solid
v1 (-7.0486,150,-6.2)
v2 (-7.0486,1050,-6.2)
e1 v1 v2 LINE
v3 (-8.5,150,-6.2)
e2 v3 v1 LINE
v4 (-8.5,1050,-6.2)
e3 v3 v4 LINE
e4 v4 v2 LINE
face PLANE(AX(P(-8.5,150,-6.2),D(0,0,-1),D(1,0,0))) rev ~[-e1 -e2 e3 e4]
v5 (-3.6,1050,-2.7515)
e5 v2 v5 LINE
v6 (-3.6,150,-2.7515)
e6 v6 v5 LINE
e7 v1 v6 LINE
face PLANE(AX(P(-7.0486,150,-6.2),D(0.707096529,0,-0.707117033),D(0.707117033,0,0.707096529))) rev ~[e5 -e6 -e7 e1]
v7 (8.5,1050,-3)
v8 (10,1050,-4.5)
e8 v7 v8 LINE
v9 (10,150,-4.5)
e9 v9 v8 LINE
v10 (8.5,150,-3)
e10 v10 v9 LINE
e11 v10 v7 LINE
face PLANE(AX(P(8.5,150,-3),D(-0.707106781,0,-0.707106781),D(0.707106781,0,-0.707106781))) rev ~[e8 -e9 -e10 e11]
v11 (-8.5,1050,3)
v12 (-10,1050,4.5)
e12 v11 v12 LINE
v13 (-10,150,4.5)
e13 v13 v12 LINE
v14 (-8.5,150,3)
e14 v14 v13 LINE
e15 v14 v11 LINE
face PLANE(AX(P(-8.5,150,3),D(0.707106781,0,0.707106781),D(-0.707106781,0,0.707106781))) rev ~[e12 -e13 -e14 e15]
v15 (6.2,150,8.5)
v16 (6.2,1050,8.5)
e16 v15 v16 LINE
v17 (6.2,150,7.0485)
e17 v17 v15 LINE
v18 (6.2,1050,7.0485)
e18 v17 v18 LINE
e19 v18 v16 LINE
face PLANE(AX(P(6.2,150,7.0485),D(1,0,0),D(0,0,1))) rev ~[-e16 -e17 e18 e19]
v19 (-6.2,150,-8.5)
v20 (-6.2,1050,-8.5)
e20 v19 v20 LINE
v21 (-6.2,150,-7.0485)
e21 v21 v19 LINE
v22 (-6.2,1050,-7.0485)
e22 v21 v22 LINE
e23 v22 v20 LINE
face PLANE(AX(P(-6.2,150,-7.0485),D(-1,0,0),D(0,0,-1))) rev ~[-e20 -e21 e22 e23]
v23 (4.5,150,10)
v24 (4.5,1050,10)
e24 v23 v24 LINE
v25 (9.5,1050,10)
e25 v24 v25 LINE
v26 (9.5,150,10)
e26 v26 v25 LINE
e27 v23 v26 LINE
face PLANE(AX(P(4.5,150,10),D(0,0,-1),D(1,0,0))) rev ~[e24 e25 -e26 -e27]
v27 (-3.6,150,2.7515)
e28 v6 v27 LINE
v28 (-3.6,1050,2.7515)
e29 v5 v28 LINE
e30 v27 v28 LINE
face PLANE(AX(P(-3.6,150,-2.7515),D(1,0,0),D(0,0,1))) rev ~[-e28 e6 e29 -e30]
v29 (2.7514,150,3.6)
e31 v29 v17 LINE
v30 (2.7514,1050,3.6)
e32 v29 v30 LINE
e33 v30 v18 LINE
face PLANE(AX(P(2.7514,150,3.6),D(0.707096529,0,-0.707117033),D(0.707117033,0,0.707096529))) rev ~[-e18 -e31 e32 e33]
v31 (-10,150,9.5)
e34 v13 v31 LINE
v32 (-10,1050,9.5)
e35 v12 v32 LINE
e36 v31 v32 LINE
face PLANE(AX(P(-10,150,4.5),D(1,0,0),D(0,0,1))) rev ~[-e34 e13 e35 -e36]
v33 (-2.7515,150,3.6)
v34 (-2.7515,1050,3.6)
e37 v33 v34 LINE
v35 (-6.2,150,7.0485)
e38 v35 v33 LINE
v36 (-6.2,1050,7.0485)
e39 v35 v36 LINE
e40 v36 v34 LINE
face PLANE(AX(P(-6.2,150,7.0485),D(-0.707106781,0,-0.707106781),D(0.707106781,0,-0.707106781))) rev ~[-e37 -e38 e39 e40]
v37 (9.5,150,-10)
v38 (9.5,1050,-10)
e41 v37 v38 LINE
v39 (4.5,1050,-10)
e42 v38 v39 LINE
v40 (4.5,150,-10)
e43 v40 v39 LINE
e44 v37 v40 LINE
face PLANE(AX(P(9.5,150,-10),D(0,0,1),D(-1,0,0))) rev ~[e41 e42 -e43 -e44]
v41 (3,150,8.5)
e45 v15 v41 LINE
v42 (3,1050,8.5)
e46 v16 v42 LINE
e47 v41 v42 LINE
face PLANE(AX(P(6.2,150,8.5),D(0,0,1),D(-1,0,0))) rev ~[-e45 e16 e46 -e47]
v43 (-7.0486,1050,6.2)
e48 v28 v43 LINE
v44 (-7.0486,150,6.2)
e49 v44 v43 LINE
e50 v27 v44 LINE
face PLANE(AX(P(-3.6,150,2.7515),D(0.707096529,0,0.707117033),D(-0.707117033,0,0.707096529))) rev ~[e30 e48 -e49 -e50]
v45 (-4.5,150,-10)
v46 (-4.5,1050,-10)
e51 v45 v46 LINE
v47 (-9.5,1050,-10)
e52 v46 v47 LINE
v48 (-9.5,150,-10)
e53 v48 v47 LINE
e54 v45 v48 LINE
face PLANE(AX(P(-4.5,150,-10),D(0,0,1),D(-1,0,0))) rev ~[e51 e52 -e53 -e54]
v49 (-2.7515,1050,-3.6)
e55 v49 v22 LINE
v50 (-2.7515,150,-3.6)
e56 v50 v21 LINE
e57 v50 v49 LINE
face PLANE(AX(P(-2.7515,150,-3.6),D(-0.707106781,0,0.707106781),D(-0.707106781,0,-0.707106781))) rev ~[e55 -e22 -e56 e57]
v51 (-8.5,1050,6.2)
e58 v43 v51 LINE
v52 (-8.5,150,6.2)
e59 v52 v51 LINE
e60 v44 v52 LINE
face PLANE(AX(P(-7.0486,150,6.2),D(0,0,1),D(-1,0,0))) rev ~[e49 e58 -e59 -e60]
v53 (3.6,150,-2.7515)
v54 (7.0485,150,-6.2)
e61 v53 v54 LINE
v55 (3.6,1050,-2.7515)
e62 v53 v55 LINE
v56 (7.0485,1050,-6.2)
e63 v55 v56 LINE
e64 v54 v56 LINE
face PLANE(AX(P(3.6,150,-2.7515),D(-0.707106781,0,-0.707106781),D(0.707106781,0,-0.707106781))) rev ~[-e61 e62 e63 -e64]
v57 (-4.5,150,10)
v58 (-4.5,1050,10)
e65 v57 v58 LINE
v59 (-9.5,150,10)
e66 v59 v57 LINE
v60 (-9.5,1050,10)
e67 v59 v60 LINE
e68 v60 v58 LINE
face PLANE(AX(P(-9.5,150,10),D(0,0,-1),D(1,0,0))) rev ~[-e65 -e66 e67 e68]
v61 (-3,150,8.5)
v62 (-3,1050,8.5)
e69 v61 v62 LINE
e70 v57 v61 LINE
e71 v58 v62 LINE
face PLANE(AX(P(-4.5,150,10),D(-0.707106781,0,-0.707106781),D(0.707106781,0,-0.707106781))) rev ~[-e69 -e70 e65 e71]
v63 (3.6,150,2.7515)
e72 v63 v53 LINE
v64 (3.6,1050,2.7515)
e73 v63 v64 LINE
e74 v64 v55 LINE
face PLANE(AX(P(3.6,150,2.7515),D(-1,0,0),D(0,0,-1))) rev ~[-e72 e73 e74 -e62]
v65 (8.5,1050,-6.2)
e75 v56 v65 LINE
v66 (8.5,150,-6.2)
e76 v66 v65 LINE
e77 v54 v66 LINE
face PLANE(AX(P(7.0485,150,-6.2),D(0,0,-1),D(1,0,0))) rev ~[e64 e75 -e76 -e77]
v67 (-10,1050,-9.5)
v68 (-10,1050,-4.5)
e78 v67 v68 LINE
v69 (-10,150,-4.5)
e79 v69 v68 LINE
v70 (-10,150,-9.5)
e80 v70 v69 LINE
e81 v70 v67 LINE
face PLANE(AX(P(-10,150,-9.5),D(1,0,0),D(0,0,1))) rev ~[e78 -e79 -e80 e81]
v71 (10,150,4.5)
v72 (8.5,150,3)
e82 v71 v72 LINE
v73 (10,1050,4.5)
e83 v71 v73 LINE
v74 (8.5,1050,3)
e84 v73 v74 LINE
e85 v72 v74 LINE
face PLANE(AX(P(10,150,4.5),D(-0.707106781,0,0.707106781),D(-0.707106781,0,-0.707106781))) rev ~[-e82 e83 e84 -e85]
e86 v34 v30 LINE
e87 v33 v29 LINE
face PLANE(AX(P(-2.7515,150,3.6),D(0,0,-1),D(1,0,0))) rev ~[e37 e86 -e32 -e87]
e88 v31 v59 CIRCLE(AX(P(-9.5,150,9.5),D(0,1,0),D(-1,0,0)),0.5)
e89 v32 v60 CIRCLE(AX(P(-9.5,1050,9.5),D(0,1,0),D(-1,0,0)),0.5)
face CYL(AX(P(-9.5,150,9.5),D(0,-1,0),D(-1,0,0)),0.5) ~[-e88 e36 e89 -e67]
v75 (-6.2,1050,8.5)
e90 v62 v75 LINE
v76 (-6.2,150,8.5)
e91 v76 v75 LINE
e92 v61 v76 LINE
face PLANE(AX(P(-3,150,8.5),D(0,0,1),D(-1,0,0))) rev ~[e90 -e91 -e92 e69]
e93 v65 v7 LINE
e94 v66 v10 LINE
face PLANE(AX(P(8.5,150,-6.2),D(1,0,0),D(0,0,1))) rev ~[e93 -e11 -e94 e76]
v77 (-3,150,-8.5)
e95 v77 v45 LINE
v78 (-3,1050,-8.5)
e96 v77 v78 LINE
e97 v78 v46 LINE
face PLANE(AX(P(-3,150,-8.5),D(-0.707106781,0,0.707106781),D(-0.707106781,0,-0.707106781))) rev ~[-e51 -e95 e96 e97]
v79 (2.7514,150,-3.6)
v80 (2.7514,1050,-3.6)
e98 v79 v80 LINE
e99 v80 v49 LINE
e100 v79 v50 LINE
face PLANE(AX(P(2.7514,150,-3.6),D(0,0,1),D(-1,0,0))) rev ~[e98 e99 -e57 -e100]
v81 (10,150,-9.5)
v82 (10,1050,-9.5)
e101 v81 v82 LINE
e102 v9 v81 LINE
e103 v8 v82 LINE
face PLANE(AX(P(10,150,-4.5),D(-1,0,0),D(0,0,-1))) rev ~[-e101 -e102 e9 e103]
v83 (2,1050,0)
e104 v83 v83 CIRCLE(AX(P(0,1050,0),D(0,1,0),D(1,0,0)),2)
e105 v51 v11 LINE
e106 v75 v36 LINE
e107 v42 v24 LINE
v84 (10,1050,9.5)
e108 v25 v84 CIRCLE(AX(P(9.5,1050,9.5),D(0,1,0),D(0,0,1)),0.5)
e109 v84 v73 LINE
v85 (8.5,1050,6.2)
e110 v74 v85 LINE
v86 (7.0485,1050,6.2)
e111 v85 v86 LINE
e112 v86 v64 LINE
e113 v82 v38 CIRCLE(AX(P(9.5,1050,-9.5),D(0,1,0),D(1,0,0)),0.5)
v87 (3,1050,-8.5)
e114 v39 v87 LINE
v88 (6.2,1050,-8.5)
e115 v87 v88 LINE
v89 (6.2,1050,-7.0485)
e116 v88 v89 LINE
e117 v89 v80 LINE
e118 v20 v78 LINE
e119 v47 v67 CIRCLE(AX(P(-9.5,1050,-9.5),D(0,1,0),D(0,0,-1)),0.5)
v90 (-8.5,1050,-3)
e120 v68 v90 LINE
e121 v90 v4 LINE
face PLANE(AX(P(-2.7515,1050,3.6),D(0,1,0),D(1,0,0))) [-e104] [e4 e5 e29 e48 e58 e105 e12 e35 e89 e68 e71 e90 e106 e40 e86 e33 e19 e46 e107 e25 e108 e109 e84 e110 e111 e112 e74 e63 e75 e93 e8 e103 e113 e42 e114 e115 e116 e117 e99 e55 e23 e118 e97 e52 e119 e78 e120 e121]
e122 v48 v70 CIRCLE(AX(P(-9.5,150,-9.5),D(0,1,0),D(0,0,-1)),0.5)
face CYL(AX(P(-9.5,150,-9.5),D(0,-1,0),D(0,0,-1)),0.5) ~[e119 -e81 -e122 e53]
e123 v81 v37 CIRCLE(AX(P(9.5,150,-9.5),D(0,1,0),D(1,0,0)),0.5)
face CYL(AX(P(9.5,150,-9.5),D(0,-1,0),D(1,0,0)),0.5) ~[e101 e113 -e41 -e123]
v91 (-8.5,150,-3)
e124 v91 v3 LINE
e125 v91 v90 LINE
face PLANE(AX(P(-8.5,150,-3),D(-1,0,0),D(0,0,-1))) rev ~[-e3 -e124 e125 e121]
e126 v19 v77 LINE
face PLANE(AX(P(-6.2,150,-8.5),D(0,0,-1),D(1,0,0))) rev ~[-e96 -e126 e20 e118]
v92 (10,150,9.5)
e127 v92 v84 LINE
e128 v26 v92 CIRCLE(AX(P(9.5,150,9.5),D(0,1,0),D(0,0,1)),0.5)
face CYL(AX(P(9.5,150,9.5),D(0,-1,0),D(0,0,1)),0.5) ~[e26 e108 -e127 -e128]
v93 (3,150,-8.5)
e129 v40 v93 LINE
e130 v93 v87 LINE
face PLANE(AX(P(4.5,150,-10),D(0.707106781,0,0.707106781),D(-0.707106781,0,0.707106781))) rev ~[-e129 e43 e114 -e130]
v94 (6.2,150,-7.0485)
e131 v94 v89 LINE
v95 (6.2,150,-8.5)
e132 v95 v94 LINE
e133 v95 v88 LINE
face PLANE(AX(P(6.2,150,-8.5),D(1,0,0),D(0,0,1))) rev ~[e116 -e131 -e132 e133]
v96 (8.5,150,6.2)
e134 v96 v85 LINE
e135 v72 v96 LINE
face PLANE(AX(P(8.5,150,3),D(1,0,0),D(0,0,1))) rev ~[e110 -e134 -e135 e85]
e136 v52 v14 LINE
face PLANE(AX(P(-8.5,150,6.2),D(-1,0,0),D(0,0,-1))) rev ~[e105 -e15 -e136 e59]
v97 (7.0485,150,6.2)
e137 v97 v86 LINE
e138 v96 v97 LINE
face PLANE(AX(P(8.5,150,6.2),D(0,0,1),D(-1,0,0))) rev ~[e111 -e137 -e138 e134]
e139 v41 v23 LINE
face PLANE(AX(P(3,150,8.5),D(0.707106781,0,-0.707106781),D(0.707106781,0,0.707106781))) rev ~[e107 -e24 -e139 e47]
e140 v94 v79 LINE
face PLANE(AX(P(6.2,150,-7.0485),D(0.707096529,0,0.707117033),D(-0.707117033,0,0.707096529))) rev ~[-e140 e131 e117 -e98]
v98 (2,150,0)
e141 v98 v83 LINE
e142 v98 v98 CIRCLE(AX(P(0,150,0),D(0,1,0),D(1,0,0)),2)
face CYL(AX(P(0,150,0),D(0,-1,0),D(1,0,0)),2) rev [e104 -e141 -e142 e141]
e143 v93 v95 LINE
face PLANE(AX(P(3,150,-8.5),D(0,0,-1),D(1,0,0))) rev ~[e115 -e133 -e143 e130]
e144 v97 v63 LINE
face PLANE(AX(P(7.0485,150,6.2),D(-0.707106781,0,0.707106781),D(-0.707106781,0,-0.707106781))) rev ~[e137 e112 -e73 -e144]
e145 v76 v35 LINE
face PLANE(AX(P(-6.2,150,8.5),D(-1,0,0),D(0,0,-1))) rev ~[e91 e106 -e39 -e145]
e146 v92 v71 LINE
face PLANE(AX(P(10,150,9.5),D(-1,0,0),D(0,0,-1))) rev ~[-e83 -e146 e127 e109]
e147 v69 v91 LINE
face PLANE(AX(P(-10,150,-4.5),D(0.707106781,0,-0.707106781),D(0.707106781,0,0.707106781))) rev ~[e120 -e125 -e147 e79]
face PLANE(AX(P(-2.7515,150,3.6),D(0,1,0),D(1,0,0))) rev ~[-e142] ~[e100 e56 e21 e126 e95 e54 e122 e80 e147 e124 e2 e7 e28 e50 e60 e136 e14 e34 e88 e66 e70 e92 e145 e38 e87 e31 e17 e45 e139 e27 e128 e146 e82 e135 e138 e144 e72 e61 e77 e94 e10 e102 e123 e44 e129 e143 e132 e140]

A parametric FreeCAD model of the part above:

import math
import FreeCAD as App
import Part
import Sketcher
Q = App.Units.Quantity

doc = App.newDocument("Part")
params = doc.addObject("Spreadsheet::Sheet", "Params")
for row, (alias, value) in enumerate([
    ("sketch1_diameter", "4 mm"),
    ("sketch1_radius", "0.5 mm"),
    ("sketch1_width", "5 mm"),
    ("sketch1_width2", "3.2 mm"),
    ("pad1_length", "900 mm"),
], start=1):
    params.set(f"A{row}", alias)
    params.set(f"B{row}", "=" + value)
    params.setAlias(f"B{row}", alias)

body = doc.addObject("PartDesign::Body", "Body")

sketch1 = doc.addObject("Sketcher::SketchObject", "Sketch")
body.addObject(sketch1)
sketch1.AttachmentSupport = (doc.XZ_Plane, [""])
sketch1.MapMode = "FlatFace"
sketch1.AttachmentOffset = App.Placement(App.Vector(0, 0, -150), App.Rotation())
sketch1.addGeometry([
    Part.LineSegment(App.Vector(-4.5, -10, 0), App.Vector(-9.5, -10, 0)),
    Part.ArcOfCircle(Part.Circle(App.Vector(-9.5, -9.5, 0), App.Vector(0, 0, 1), 0.5), math.radians(180), math.radians(270)),
    Part.LineSegment(App.Vector(-10, -9.5, 0), App.Vector(-10, -4.5, 0)),
    Part.LineSegment(App.Vector(-10, -4.5, 0), App.Vector(-8.5, -3, 0)),
    Part.LineSegment(App.Vector(-8.5, -3, 0), App.Vector(-8.5, -6.2, 0)),
    Part.LineSegment(App.Vector(-8.5, -6.2, 0), App.Vector(-7, -6.2, 0)),
    Part.LineSegment(App.Vector(-7, -6.2, 0), App.Vector(-3.6, -2.8, 0)),
    Part.LineSegment(App.Vector(-3.6, -2.8, 0), App.Vector(-3.6, 2.8, 0)),
    Part.LineSegment(App.Vector(-3.6, 2.8, 0), App.Vector(-7, 6.2, 0)),
    Part.LineSegment(App.Vector(-7, 6.2, 0), App.Vector(-8.5, 6.2, 0)),
    Part.LineSegment(App.Vector(-8.5, 6.2, 0), App.Vector(-8.5, 3, 0)),
    Part.LineSegment(App.Vector(-8.5, 3, 0), App.Vector(-10, 4.5, 0)),
    Part.LineSegment(App.Vector(-10, 4.5, 0), App.Vector(-10, 9.5, 0)),
    Part.ArcOfCircle(Part.Circle(App.Vector(-9.5, 9.5, 0), App.Vector(0, 0, 1), 0.5), math.radians(90), math.radians(180)),
    Part.LineSegment(App.Vector(-9.5, 10, 0), App.Vector(-4.5, 10, 0)),
    Part.LineSegment(App.Vector(-4.5, 10, 0), App.Vector(-3, 8.5, 0)),
    Part.LineSegment(App.Vector(-3, 8.5, 0), App.Vector(-6.2, 8.5, 0)),
    Part.LineSegment(App.Vector(-6.2, 8.5, 0), App.Vector(-6.2, 7, 0)),
    Part.LineSegment(App.Vector(-6.2, 7, 0), App.Vector(-2.8, 3.6, 0)),
    Part.LineSegment(App.Vector(-2.8, 3.6, 0), App.Vector(2.8, 3.6, 0)),
    Part.LineSegment(App.Vector(2.8, 3.6, 0), App.Vector(6.2, 7, 0)),
    Part.LineSegment(App.Vector(6.2, 7, 0), App.Vector(6.2, 8.5, 0)),
    Part.LineSegment(App.Vector(6.2, 8.5, 0), App.Vector(3, 8.5, 0)),
    Part.LineSegment(App.Vector(3, 8.5, 0), App.Vector(4.5, 10, 0)),
    Part.LineSegment(App.Vector(4.5, 10, 0), App.Vector(9.5, 10, 0)),
    Part.ArcOfCircle(Part.Circle(App.Vector(9.5, 9.5, 0), App.Vector(0, 0, 1), 0.5), math.radians(0), math.radians(90)),
    Part.LineSegment(App.Vector(10, 9.5, 0), App.Vector(10, 4.5, 0)),
    Part.LineSegment(App.Vector(10, 4.5, 0), App.Vector(8.5, 3, 0)),
    Part.LineSegment(App.Vector(8.5, 3, 0), App.Vector(8.5, 6.2, 0)),
    Part.LineSegment(App.Vector(8.5, 6.2, 0), App.Vector(7, 6.2, 0)),
    Part.LineSegment(App.Vector(7, 6.2, 0), App.Vector(3.6, 2.8, 0)),
    Part.LineSegment(App.Vector(3.6, 2.8, 0), App.Vector(3.6, -2.8, 0)),
    Part.LineSegment(App.Vector(3.6, -2.8, 0), App.Vector(7, -6.2, 0)),
    Part.LineSegment(App.Vector(7, -6.2, 0), App.Vector(8.5, -6.2, 0)),
    Part.LineSegment(App.Vector(8.5, -6.2, 0), App.Vector(8.5, -3, 0)),
    Part.LineSegment(App.Vector(8.5, -3, 0), App.Vector(10, -4.5, 0)),
    Part.LineSegment(App.Vector(10, -4.5, 0), App.Vector(10, -9.5, 0)),
    Part.ArcOfCircle(Part.Circle(App.Vector(9.5, -9.5, 0), App.Vector(0, 0, 1), 0.5), math.radians(-90), math.radians(0)),
    Part.LineSegment(App.Vector(9.5, -10, 0), App.Vector(4.5, -10, 0)),
    Part.LineSegment(App.Vector(4.5, -10, 0), App.Vector(3, -8.5, 0)),
    Part.LineSegment(App.Vector(3, -8.5, 0), App.Vector(6.2, -8.5, 0)),
    Part.LineSegment(App.Vector(6.2, -8.5, 0), App.Vector(6.2, -7, 0)),
    Part.LineSegment(App.Vector(6.2, -7, 0), App.Vector(2.8, -3.6, 0)),
    Part.LineSegment(App.Vector(2.8, -3.6, 0), App.Vector(-2.8, -3.6, 0)),
    Part.LineSegment(App.Vector(-2.8, -3.6, 0), App.Vector(-6.2, -7, 0)),
    Part.LineSegment(App.Vector(-6.2, -7, 0), App.Vector(-6.2, -8.5, 0)),
    Part.LineSegment(App.Vector(-6.2, -8.5, 0), App.Vector(-3, -8.5, 0)),
    Part.LineSegment(App.Vector(-3, -8.5, 0), App.Vector(-4.5, -10, 0)),
    Part.Circle(App.Vector(0, 0, 0), App.Vector(0, 0, 1), 2),
], False)
sketch1.addConstraint([
    Sketcher.Constraint("Tangent", 0, 2, 1, 2),
    Sketcher.Constraint("Tangent", 1, 1, 2, 1),
    Sketcher.Constraint("Coincident", 2, 2, 3, 1),
    Sketcher.Constraint("Coincident", 3, 2, 4, 1),
    Sketcher.Constraint("Coincident", 4, 2, 5, 1),
    Sketcher.Constraint("Coincident", 5, 2, 6, 1),
    Sketcher.Constraint("Coincident", 6, 2, 7, 1),
    Sketcher.Constraint("Coincident", 7, 2, 8, 1),
    Sketcher.Constraint("Coincident", 8, 2, 9, 1),
    Sketcher.Constraint("Coincident", 9, 2, 10, 1),
    Sketcher.Constraint("Coincident", 10, 2, 11, 1),
    Sketcher.Constraint("Coincident", 11, 2, 12, 1),
    Sketcher.Constraint("Tangent", 12, 2, 13, 2),
    Sketcher.Constraint("Tangent", 13, 1, 14, 1),
    Sketcher.Constraint("Coincident", 14, 2, 15, 1),
    Sketcher.Constraint("Coincident", 15, 2, 16, 1),
    Sketcher.Constraint("Coincident", 16, 2, 17, 1),
    Sketcher.Constraint("Coincident", 17, 2, 18, 1),
    Sketcher.Constraint("Coincident", 18, 2, 19, 1),
    Sketcher.Constraint("Coincident", 19, 2, 20, 1),
    Sketcher.Constraint("Coincident", 20, 2, 21, 1),
    Sketcher.Constraint("Coincident", 21, 2, 22, 1),
    Sketcher.Constraint("Coincident", 22, 2, 23, 1),
    Sketcher.Constraint("Coincident", 23, 2, 24, 1),
    Sketcher.Constraint("Tangent", 24, 2, 25, 2),
    Sketcher.Constraint("Tangent", 25, 1, 26, 1),
    Sketcher.Constraint("Coincident", 26, 2, 27, 1),
    Sketcher.Constraint("Coincident", 27, 2, 28, 1),
    Sketcher.Constraint("Coincident", 28, 2, 29, 1),
    Sketcher.Constraint("Coincident", 29, 2, 30, 1),
    Sketcher.Constraint("Coincident", 30, 2, 31, 1),
    Sketcher.Constraint("Coincident", 31, 2, 32, 1),
    Sketcher.Constraint("Coincident", 32, 2, 33, 1),
    Sketcher.Constraint("Coincident", 33, 2, 34, 1),
    Sketcher.Constraint("Coincident", 34, 2, 35, 1),
    Sketcher.Constraint("Coincident", 35, 2, 36, 1),
    Sketcher.Constraint("Tangent", 36, 2, 37, 2),
    Sketcher.Constraint("Tangent", 37, 1, 38, 1),
    Sketcher.Constraint("Coincident", 38, 2, 39, 1),
    Sketcher.Constraint("Coincident", 39, 2, 40, 1),
    Sketcher.Constraint("Coincident", 40, 2, 41, 1),
    Sketcher.Constraint("Coincident", 41, 2, 42, 1),
    Sketcher.Constraint("Coincident", 42, 2, 43, 1),
    Sketcher.Constraint("Coincident", 43, 2, 44, 1),
    Sketcher.Constraint("Coincident", 44, 2, 45, 1),
    Sketcher.Constraint("Coincident", 45, 2, 46, 1),
    Sketcher.Constraint("Coincident", 46, 2, 47, 1),
    Sketcher.Constraint("Coincident", 47, 2, 0, 1),
    Sketcher.Constraint("Horizontal", 0),
    Sketcher.Constraint("Vertical", 2),
    Sketcher.Constraint("Vertical", 4),
    Sketcher.Constraint("Horizontal", 5),
    Sketcher.Constraint("Vertical", 7),
    Sketcher.Constraint("Horizontal", 9),
    Sketcher.Constraint("Vertical", 10),
    Sketcher.Constraint("Vertical", 12),
    Sketcher.Constraint("Horizontal", 14),
    Sketcher.Constraint("Horizontal", 16),
    Sketcher.Constraint("Vertical", 17),
    Sketcher.Constraint("Horizontal", 19),
    Sketcher.Constraint("Vertical", 21),
    Sketcher.Constraint("Horizontal", 22),
    Sketcher.Constraint("Horizontal", 24),
    Sketcher.Constraint("Vertical", 26),
    Sketcher.Constraint("Vertical", 28),
    Sketcher.Constraint("Horizontal", 29),
    Sketcher.Constraint("Vertical", 31),
    Sketcher.Constraint("Horizontal", 33),
    Sketcher.Constraint("Vertical", 34),
    Sketcher.Constraint("Vertical", 36),
    Sketcher.Constraint("Horizontal", 38),
    Sketcher.Constraint("Horizontal", 40),
    Sketcher.Constraint("Vertical", 41),
    Sketcher.Constraint("Horizontal", 43),
    Sketcher.Constraint("Vertical", 45),
    Sketcher.Constraint("Horizontal", 46),
    Sketcher.Constraint("Coincident", 48, 3, -1, 1),
    Sketcher.Constraint("Equal", 1, 13),
    Sketcher.Constraint("Equal", 13, 25),
    Sketcher.Constraint("Equal", 25, 37),
    Sketcher.Constraint("Symmetric", 1, 3, 25, 3, -1, 1),
    Sketcher.Constraint("Symmetric", 13, 3, 37, 3, -1, 1),
    Sketcher.Constraint("Symmetric", 3, 2, 27, 2, -1, 1),
    Sketcher.Constraint("Symmetric", 5, 2, 29, 2, -1, 1),
    Sketcher.Constraint("Symmetric", 6, 2, 30, 2, -1, 1),
    Sketcher.Constraint("Symmetric", 8, 2, 32, 2, -1, 1),
    Sketcher.Constraint("Symmetric", 10, 2, 34, 2, -1, 1),
    Sketcher.Constraint("Symmetric", 15, 2, 39, 2, -1, 1),
    Sketcher.Constraint("Symmetric", 17, 2, 41, 2, -1, 1),
    Sketcher.Constraint("Symmetric", 18, 2, 42, 2, -1, 1),
    Sketcher.Constraint("Symmetric", 20, 2, 44, 2, -1, 1),
    Sketcher.Constraint("Symmetric", 22, 2, 46, 2, -1, 1),
    Sketcher.Constraint("Symmetric", 13, 3, 25, 3, -2),
    Sketcher.Constraint("Symmetric", 17, 2, 20, 2, -2),
    Sketcher.Constraint("Symmetric", 15, 2, 22, 2, -2),
    Sketcher.Constraint("Symmetric", 10, 2, 27, 2, -2),
    Sketcher.Constraint("Symmetric", 8, 2, 29, 2, -2),
    Sketcher.Constraint("Parallel", 3, 6),
    Sketcher.Constraint("Perpendicular", 6, 8),
    Sketcher.Constraint("Parallel", 8, 11),
    Sketcher.Constraint("Parallel", 11, 15),
    Sketcher.Constraint("Parallel", 15, 18),
    Sketcher.Constraint("Perpendicular", 18, 20),
    Sketcher.Constraint("Parallel", 20, 23),
    Sketcher.Constraint("Parallel", 23, 27),
    Sketcher.Constraint("Perpendicular", 30, 32),
    Sketcher.Constraint("Parallel", 32, 35),
    Sketcher.Constraint("Parallel", 35, 39),
    Sketcher.Constraint("Perpendicular", 42, 44),
    Sketcher.Constraint("Parallel", 44, 47),
    Sketcher.Constraint("Horizontal", 11, 2, 26, 2),
    Sketcher.Constraint("Equal", 38, 2),
    Sketcher.Constraint("Equal", 46, 4),
    Sketcher.Constraint("Equal", 43, 7),
    Sketcher.Constraint("Equal", 33, 17),
    Sketcher.Constraint("Equal", 11, 15),
    Sketcher.Constraint("Equal", 8, 18),
    Sketcher.Constraint("Diameter", 48, Q("4 mm")),
    Sketcher.Constraint("Radius", 1, Q("0.5 mm")),
    Sketcher.Constraint("DistanceX", 0, 2, 0, 1, Q("5 mm")),
    Sketcher.Constraint("DistanceX", 16, 2, 16, 1, Q("3.2 mm")),
    Sketcher.Constraint("DistanceY", 0, 2, -1, 1, Q("10 mm")),
    Sketcher.Constraint("DistanceY", 3, 2, -1, 1, Q("3 mm")),
    Sketcher.Constraint("DistanceX", 6, 2, -1, 1, Q("3.6 mm")),
    Sketcher.Constraint("DistanceX", 19, 1, 19, 2, Q("5.503 mm")),
])
sketch1.setExpression("Constraints[117]", "Params.sketch1_diameter")
sketch1.setExpression("Constraints[118]", "Params.sketch1_radius")
sketch1.setExpression("Constraints[119]", "Params.sketch1_width")
sketch1.setExpression("Constraints[120]", "Params.sketch1_width2")
pad1 = doc.addObject("PartDesign::Pad", "Pad")
body.addObject(pad1)
pad1.Profile = sketch1
pad1.setExpression("Length", "Params.pad1_length")
pad1.Reversed = True

doc.recompute()
